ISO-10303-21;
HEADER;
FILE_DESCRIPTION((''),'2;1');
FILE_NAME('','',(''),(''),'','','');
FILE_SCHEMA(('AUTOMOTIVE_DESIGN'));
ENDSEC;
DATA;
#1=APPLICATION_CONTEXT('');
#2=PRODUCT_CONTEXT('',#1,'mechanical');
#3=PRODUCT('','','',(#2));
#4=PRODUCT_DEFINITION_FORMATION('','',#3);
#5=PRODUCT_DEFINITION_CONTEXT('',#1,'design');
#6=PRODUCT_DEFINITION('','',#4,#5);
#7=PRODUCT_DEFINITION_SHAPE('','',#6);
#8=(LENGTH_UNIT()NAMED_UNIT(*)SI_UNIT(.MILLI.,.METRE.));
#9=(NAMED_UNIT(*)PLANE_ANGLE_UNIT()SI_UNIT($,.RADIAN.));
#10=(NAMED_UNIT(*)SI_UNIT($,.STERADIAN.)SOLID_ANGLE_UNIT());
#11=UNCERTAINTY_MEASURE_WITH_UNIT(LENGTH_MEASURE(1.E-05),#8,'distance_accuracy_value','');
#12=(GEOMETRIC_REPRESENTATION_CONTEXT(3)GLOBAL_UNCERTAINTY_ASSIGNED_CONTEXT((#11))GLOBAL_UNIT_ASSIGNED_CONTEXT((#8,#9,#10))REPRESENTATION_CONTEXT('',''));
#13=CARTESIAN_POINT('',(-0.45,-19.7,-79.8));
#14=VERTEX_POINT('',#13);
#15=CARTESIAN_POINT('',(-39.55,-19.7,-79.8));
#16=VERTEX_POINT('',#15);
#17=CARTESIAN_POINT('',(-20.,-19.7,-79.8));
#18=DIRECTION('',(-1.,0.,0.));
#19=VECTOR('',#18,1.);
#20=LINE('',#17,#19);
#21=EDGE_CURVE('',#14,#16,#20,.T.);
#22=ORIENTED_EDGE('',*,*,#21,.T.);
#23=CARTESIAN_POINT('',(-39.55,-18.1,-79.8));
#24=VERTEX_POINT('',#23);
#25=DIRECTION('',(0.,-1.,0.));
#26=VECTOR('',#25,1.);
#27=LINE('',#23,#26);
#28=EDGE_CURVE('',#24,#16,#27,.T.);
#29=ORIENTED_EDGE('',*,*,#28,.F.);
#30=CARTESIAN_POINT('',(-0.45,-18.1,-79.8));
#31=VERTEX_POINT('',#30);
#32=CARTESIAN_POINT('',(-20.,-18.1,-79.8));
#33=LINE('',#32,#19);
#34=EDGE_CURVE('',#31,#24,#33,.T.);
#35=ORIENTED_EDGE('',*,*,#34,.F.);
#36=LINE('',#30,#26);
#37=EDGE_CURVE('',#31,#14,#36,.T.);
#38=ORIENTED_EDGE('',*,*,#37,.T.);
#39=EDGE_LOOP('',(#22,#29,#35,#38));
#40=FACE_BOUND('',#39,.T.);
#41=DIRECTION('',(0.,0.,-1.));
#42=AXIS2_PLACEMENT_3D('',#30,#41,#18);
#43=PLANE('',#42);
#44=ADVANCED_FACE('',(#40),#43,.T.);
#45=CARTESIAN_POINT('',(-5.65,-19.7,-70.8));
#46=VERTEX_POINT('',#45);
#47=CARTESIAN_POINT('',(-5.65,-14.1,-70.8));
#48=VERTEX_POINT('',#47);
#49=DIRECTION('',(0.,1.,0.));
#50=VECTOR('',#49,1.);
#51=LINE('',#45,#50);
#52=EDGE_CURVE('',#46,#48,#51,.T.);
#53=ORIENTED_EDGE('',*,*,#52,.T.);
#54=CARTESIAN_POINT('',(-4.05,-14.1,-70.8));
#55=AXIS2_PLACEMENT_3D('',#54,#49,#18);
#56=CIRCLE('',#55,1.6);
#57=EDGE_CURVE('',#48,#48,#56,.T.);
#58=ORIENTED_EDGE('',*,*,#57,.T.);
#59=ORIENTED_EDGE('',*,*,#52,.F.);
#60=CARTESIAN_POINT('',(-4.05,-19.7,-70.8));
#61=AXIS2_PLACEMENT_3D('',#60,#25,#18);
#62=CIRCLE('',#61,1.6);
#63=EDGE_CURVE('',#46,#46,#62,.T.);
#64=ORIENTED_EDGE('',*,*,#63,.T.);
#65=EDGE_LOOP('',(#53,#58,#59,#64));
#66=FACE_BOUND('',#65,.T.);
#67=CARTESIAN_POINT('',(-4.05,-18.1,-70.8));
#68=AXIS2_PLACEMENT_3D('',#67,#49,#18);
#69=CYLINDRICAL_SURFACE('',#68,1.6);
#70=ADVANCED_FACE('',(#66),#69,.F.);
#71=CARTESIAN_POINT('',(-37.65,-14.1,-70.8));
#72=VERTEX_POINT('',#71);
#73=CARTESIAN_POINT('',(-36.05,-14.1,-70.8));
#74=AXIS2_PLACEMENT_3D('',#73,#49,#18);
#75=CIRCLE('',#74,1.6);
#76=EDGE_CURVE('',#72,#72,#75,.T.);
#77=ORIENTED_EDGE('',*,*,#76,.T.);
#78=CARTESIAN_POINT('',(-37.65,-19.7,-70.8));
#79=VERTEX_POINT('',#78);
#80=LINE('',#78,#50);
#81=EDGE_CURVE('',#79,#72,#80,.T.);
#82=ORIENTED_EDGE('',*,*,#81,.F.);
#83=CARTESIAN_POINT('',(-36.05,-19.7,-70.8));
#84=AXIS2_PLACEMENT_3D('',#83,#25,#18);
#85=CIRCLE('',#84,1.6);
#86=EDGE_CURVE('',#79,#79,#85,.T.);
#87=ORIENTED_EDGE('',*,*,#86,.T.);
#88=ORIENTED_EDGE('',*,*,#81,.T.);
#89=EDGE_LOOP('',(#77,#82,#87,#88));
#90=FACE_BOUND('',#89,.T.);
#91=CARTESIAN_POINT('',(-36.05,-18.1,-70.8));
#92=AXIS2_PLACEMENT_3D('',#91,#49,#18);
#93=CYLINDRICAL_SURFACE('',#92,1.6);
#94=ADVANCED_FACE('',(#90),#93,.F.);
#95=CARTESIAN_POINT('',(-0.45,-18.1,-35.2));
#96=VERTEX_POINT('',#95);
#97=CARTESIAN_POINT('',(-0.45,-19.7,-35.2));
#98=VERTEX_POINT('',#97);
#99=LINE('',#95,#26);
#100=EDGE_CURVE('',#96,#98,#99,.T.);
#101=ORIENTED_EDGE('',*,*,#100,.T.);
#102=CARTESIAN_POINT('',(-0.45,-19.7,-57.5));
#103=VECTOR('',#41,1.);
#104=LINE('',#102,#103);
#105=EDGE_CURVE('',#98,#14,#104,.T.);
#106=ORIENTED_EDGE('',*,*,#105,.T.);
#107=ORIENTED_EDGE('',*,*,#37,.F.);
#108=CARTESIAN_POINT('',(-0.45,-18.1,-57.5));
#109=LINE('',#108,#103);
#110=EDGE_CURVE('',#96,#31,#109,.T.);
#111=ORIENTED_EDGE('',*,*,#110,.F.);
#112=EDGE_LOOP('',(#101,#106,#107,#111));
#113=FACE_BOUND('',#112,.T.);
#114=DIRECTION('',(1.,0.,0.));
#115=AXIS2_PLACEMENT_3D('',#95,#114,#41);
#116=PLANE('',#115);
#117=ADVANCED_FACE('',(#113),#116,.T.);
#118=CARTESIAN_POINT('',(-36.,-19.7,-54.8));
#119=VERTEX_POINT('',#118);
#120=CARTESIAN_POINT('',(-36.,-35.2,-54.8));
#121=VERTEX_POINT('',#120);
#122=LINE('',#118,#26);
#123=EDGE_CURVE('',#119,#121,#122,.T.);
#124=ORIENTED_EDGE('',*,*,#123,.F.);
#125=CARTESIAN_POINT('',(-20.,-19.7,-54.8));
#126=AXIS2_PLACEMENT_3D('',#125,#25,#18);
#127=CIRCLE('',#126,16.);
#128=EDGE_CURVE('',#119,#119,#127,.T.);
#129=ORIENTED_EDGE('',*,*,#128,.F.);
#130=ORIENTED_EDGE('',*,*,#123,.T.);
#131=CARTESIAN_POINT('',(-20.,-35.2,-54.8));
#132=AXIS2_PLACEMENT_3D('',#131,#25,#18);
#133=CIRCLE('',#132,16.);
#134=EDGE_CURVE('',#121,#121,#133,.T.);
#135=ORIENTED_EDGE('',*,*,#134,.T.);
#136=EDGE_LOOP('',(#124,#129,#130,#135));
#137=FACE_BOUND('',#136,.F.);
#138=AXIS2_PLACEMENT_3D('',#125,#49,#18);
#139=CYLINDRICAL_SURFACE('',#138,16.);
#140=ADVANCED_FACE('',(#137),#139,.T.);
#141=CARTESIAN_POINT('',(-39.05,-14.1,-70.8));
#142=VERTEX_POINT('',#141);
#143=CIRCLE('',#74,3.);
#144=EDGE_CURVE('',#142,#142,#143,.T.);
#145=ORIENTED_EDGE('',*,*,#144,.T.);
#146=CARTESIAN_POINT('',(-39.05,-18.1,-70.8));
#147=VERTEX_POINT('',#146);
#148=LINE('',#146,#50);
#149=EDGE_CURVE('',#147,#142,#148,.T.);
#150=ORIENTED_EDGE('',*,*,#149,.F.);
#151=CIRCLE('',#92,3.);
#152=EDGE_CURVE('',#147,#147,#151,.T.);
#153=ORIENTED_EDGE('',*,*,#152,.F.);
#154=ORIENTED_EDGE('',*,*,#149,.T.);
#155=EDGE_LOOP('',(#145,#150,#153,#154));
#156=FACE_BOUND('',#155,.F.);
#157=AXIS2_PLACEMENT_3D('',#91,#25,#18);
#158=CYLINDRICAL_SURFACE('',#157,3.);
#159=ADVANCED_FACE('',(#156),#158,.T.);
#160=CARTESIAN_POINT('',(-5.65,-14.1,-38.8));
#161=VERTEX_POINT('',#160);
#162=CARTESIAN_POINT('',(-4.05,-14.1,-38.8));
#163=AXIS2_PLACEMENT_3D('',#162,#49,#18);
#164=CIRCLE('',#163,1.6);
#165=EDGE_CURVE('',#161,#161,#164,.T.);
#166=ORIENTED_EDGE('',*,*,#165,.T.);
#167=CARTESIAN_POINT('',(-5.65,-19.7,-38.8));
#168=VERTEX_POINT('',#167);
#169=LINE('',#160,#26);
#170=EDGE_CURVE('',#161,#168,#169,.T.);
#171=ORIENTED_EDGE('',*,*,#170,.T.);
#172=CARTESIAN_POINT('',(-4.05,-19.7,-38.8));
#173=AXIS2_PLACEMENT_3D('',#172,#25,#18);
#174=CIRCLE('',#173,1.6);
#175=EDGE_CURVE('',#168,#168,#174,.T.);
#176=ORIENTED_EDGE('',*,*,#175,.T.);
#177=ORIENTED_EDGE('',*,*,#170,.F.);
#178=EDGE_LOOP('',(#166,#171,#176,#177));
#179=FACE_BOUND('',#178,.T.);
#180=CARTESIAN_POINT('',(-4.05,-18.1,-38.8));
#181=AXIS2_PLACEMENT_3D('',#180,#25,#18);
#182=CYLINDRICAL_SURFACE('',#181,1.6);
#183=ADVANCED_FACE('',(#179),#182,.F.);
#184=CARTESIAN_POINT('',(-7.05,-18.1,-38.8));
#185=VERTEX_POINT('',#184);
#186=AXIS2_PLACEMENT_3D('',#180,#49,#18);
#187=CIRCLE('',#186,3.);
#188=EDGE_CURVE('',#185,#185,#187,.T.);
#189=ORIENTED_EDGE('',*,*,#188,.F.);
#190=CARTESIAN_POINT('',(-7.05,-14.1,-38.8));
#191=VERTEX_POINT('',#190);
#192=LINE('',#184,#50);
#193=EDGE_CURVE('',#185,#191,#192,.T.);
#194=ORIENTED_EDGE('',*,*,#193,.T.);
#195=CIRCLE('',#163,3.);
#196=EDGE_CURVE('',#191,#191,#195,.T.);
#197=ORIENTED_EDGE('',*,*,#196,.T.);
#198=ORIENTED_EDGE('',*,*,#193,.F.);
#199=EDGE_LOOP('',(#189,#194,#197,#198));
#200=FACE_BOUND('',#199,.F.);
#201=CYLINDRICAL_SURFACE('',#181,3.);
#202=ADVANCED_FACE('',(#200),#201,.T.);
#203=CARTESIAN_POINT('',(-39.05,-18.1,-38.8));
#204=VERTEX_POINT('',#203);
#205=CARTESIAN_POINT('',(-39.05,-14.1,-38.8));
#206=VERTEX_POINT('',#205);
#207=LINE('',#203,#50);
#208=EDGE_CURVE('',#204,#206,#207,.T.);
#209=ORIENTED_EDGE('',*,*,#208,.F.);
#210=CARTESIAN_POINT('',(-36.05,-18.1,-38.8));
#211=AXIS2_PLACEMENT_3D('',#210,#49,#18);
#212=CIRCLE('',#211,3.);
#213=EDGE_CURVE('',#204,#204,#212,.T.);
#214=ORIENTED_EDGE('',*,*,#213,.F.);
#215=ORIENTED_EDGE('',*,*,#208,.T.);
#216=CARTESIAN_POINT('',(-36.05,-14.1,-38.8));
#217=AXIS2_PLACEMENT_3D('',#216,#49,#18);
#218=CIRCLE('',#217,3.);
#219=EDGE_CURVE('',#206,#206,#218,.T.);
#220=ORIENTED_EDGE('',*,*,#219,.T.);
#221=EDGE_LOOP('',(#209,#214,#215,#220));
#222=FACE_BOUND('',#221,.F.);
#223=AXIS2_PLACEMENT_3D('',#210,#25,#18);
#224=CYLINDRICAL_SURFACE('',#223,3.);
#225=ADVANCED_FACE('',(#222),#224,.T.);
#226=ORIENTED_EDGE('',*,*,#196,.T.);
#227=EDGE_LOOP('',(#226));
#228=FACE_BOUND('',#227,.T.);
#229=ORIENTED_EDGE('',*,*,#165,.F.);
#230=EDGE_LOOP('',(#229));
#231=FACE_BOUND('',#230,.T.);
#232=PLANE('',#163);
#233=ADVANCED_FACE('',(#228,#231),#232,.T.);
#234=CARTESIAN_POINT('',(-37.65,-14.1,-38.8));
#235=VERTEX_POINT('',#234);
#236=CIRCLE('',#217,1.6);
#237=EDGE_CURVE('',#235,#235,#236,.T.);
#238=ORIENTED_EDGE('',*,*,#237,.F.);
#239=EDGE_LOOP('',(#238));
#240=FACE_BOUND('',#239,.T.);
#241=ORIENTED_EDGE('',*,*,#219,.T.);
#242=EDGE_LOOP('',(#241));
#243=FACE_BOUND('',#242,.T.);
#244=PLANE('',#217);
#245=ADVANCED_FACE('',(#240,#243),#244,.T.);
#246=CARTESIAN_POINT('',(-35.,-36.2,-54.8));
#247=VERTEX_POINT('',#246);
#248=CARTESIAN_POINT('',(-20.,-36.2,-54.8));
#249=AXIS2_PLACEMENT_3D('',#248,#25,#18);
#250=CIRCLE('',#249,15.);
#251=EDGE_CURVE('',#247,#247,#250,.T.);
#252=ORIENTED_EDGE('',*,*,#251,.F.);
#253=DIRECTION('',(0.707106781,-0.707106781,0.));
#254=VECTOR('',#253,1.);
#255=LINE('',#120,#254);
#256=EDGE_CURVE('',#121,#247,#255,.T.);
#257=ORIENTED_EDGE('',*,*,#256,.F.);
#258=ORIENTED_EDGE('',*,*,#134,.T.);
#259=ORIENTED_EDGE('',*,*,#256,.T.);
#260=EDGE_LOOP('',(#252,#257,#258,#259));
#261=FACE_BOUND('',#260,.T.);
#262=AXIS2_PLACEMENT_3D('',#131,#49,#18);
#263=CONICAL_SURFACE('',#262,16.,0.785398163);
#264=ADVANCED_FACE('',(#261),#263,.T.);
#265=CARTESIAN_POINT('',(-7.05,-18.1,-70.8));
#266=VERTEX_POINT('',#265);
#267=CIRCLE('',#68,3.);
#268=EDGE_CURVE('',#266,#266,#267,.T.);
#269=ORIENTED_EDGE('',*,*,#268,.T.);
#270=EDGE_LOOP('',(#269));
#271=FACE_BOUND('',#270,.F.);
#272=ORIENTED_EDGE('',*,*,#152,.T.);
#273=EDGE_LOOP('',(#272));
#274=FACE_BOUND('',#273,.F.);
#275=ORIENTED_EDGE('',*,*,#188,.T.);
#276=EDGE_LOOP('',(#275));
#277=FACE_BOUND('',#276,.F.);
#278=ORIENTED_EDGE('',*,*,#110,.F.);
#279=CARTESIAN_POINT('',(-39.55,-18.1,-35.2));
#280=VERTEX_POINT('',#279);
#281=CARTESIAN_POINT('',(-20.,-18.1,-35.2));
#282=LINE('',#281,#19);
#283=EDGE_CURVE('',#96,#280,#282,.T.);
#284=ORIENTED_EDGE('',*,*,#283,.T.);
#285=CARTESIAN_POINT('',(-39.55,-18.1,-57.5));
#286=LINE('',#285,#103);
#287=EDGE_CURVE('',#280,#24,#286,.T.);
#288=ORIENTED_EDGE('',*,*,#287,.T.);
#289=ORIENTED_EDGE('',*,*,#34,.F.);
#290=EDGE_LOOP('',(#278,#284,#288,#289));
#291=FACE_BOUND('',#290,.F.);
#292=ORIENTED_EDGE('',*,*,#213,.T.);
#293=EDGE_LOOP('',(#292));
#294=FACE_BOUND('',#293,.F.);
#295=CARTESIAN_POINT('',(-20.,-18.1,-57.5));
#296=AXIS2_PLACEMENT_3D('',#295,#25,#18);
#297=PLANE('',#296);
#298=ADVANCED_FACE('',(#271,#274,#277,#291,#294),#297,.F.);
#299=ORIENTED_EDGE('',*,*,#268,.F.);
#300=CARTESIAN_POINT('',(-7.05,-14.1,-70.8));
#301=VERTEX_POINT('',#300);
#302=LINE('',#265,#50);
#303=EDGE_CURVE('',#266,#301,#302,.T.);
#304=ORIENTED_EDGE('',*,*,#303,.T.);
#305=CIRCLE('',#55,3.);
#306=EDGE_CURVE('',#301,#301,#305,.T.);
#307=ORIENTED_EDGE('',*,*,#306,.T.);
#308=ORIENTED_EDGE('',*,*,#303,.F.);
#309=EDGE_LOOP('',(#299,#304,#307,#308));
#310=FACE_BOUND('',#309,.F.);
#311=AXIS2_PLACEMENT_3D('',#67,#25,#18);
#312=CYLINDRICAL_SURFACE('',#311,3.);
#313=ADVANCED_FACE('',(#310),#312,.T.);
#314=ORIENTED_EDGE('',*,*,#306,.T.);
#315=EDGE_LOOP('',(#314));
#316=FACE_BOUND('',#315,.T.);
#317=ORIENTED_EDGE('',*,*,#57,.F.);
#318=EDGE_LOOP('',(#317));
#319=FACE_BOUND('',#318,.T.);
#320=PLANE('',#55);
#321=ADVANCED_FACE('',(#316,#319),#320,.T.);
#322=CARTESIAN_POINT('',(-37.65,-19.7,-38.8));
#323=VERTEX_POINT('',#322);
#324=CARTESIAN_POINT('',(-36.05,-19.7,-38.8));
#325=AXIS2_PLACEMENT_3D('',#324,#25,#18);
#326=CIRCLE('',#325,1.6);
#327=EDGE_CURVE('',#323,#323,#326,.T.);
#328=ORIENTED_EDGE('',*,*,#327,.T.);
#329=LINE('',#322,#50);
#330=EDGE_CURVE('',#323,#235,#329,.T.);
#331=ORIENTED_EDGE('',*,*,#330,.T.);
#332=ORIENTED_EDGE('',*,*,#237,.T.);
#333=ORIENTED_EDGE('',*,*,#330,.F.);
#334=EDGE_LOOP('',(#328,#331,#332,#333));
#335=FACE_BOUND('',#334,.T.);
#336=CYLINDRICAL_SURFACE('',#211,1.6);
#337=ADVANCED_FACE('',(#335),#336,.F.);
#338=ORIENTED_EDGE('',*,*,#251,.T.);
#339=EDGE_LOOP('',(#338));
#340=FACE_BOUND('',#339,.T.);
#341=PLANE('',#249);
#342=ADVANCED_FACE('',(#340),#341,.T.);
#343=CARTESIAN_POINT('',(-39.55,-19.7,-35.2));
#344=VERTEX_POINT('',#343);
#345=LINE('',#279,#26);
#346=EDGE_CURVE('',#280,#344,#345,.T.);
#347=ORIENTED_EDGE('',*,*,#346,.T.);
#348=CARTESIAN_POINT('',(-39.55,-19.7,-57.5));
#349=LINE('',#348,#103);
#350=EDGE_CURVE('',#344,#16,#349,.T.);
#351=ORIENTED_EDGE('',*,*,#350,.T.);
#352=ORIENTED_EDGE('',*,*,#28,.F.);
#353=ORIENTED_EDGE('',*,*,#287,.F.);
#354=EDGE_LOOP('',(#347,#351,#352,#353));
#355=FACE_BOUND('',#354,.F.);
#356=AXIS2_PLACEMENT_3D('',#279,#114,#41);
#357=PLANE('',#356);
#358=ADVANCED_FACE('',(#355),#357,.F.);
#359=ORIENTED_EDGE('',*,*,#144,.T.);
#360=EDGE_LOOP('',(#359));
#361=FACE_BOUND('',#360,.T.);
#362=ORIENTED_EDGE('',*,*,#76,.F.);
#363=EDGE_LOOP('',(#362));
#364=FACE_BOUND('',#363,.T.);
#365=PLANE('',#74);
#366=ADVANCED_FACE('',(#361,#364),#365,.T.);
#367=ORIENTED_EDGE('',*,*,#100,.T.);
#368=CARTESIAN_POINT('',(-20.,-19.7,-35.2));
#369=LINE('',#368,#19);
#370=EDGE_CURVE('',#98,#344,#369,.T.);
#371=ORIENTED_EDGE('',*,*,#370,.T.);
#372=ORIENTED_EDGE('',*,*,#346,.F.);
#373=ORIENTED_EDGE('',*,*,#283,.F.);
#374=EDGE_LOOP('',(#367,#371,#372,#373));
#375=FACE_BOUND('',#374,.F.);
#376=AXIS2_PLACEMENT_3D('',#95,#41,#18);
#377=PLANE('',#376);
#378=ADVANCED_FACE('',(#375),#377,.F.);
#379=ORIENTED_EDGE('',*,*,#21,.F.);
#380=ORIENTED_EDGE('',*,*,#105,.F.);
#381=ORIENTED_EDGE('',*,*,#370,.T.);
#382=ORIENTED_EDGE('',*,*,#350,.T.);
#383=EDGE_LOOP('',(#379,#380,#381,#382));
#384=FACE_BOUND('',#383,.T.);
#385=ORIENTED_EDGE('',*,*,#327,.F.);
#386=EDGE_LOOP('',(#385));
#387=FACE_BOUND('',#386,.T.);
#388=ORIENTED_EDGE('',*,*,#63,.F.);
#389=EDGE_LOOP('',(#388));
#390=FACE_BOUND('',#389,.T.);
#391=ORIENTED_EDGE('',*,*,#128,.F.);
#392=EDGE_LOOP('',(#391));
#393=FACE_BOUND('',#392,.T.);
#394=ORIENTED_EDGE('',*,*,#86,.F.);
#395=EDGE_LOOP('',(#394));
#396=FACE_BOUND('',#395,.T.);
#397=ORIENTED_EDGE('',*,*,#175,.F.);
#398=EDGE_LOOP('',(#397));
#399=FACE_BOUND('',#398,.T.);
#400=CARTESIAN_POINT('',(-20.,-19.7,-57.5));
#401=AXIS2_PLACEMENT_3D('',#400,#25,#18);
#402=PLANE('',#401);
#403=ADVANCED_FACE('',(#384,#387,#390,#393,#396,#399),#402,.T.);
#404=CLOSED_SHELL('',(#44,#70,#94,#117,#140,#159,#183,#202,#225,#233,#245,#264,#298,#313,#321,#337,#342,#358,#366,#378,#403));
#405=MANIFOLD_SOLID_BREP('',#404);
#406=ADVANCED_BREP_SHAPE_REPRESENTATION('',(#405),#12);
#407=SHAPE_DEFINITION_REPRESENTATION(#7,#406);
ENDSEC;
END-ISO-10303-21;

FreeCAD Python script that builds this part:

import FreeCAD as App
import Part
import Sketcher
from FreeCAD import Vector
Q = App.Units.Quantity


def edges_at(feature, points):
    """Names of the edges that pass closest to the given points."""
    edges = feature.Shape.Edges
    near = lambda p: min(range(len(edges)), key=lambda i: edges[i].distToShape(Part.Vertex(*p))[0])
    return sorted({f"Edge{near(p) + 1}" for p in points})

doc = App.newDocument("Part")
body = doc.addObject("PartDesign::Body", "Body")

# Sketch on XZ plane
sketch1 = body.newObject("Sketcher::SketchObject", "Sketch")
sketch1.AttachmentSupport = (doc.getObject("XZ_Plane"), [""])
sketch1.MapMode = "FlatFace"
sketch1.addGeometry([
    Part.LineSegment(Vector(-19.6, 22.3, 0), Vector(-19.6, -22.3, 0)),  # 0
    Part.LineSegment(Vector(-19.6, -22.3, 0), Vector(19.6, -22.3, 0)),  # 1
    Part.LineSegment(Vector(19.6, -22.3, 0), Vector(19.6, 22.3, 0)),  # 2
    Part.LineSegment(Vector(19.6, 22.3, 0), Vector(-19.6, 22.3, 0)),  # 3
    Part.Circle(Vector(-15.9, -18.7, 0), Vector(0, 0, 1), 1.6),  # 4
    Part.Circle(Vector(16.1, -18.7, 0), Vector(0, 0, 1), 1.6),  # 5
    Part.Circle(Vector(-15.9, 13.3, 0), Vector(0, 0, 1), 1.6),  # 6
    Part.Circle(Vector(16.1, 13.3, 0), Vector(0, 0, 1), 1.6),  # 7
], False)
sketch1.addConstraint([
    Sketcher.Constraint("Coincident", 0, 2, 1, 1),
    Sketcher.Constraint("Coincident", 1, 2, 2, 1),
    Sketcher.Constraint("Coincident", 2, 2, 3, 1),
    Sketcher.Constraint("Coincident", 3, 2, 0, 1),
    Sketcher.Constraint("Vertical", 0),
    Sketcher.Constraint("Horizontal", 1),
    Sketcher.Constraint("Vertical", 2),
    Sketcher.Constraint("Horizontal", 3),
    Sketcher.Constraint("Equal", 4, 5),
    Sketcher.Constraint("Equal", 5, 6),
    Sketcher.Constraint("Equal", 6, 7),
    Sketcher.Constraint("Symmetric", 0, 2, 2, 2, -1, 1),
    Sketcher.Constraint("Horizontal", 4, 3, 5, 3),
    Sketcher.Constraint("Horizontal", 6, 3, 7, 3),
    Sketcher.Constraint("Vertical", 4, 3, 6, 3),
    Sketcher.Constraint("Vertical", 5, 3, 7, 3),
    Sketcher.Constraint("Diameter", 4, Q("3.2 mm")),
    Sketcher.Constraint("DistanceX", 1, 1, 1, 2, Q("39.1 mm")),
    Sketcher.Constraint("DistanceY", 0, 2, 0, 1, Q("44.6 mm")),
    Sketcher.Constraint("DistanceX", 4, 3, 5, 3, Q("32 mm")),
    Sketcher.Constraint("DistanceY", 4, 3, 6, 3, Q("32 mm")),
    Sketcher.Constraint("DistanceY", 7, 3, 2, 2, Q("9 mm")),
    Sketcher.Constraint("DistanceX", 0, 2, 4, 3, Q("3.6 mm")),
])
pad1 = body.newObject("PartDesign::Pad", "Pad")
pad1.Profile = sketch1
pad1.Length = 1.6

# Sketch on XZ plane
sketch2 = body.newObject("Sketcher::SketchObject", "Sketch001")
sketch2.AttachmentSupport = (doc.getObject("XZ_Plane"), [""])
sketch2.MapMode = "FlatFace"
sketch2.AttachmentOffset = App.Placement(Vector(0, 0, 1.6), App.Rotation())
sketch2.addGeometry(Part.Circle(Vector(0, -3, 0), Vector(0, 0, 1), 16), False)
sketch2.addConstraint([
    Sketcher.Constraint("PointOnObject", 0, 3, -2),
    Sketcher.Constraint("Diameter", 0, Q("32 mm")),
    Sketcher.Constraint("DistanceY", 0, 3, -1, 1, Q("2.7 mm")),
])
pad2 = body.newObject("PartDesign::Pad", "Pad001")
pad2.Profile = sketch2
pad2.Length = 16.5

# Sketch on XZ plane
sketch3 = body.newObject("Sketcher::SketchObject", "Sketch002")
sketch3.AttachmentSupport = (doc.getObject("XZ_Plane"), [""])
sketch3.MapMode = "FlatFace"
sketch3.addGeometry([
    Part.Circle(Vector(-15.9, -18.7, 0), Vector(0, 0, 1), 3),  # 0
    Part.Circle(Vector(-15.9, -18.7, 0), Vector(0, 0, 1), 1.6),  # 1
    Part.Circle(Vector(16.1, -18.7, 0), Vector(0, 0, 1), 3),  # 2
    Part.Circle(Vector(16.1, -18.7, 0), Vector(0, 0, 1), 1.6),  # 3
    Part.Circle(Vector(16.1, 13.3, 0), Vector(0, 0, 1), 3),  # 4
    Part.Circle(Vector(16.1, 13.3, 0), Vector(0, 0, 1), 1.6),  # 5
    Part.Circle(Vector(-15.9, 13.3, 0), Vector(0, 0, 1), 3),  # 6
    Part.Circle(Vector(-15.9, 13.3, 0), Vector(0, 0, 1), 1.6),  # 7
], False)
sketch3.addConstraint([
    Sketcher.Constraint("Coincident", 1, 3, 0, 3),
    Sketcher.Constraint("Coincident", 3, 3, 2, 3),
    Sketcher.Constraint("Coincident", 5, 3, 4, 3),
    Sketcher.Constraint("Coincident", 7, 3, 6, 3),
    Sketcher.Constraint("Equal", 0, 2),
    Sketcher.Constraint("Equal", 1, 3),
    Sketcher.Constraint("Equal", 2, 4),
    Sketcher.Constraint("Equal", 3, 5),
    Sketcher.Constraint("Equal", 4, 6),
    Sketcher.Constraint("Equal", 5, 7),
    Sketcher.Constraint("Horizontal", 1, 3, 2, 3),
    Sketcher.Constraint("Horizontal", 5, 3, 6, 3),
    Sketcher.Constraint("Vertical", 3, 3, 4, 3),
    Sketcher.Constraint("Vertical", 1, 3, 6, 3),
    Sketcher.Constraint("Diameter", 0, Q("6 mm")),
    Sketcher.Constraint("Diameter", 1, Q("3.2 mm")),
    Sketcher.Constraint("DistanceX", 0, 3, 2, 3, Q("32 mm")),
    Sketcher.Constraint("DistanceY", 2, 3, 4, 3, Q("32 mm")),
    Sketcher.Constraint("DistanceY", 0, 3, -1, 1, Q("18.7 mm")),
    Sketcher.Constraint("DistanceX", 0, 3, -1, 1, Q("15.95 mm")),
])
pad3 = body.newObject("PartDesign::Pad", "Pad002")
pad3.Profile = sketch3
pad3.Length = 4
pad3.Reversed = True
doc.recompute()

chamfer = body.newObject("PartDesign::Chamfer", "Chamfer")
chamfer.Base = (pad3, edges_at(pad3, [(-16, -18.1, -2.7)]))
chamfer.Size = 1
body2 = doc.addObject("PartDesign::Body", "Body001")
doc.recompute()

body.Placement = App.Placement(Vector(-20, -18.1, -102.9), App.Rotation(Vector(0, 0, 1), 0))
boolean = body2.newObject("PartDesign::Boolean", "Boolean")
boolean.Type = "Fuse"
boolean.addObjects([body])
body3 = doc.addObject("PartDesign::Body", "Body002")
doc.recompute()

body2.Placement = App.Placement(Vector(40, 0, 0), App.Rotation(Vector(0, 0, 1), 0))
boolean2 = body3.newObject("PartDesign::Boolean", "Boolean001")
boolean2.Type = "Fuse"
boolean2.addObjects([body2])
body4 = doc.addObject("PartDesign::Body", "Body003")
doc.recompute()

body3.Placement = App.Placement(Vector(0, 0, -160.4), App.Rotation(Vector(0, 1, 0), 180))
boolean3 = body4.newObject("PartDesign::Boolean", "Boolean002")
boolean3.Type = "Fuse"
boolean3.addObjects([body3])

doc.recompute()
